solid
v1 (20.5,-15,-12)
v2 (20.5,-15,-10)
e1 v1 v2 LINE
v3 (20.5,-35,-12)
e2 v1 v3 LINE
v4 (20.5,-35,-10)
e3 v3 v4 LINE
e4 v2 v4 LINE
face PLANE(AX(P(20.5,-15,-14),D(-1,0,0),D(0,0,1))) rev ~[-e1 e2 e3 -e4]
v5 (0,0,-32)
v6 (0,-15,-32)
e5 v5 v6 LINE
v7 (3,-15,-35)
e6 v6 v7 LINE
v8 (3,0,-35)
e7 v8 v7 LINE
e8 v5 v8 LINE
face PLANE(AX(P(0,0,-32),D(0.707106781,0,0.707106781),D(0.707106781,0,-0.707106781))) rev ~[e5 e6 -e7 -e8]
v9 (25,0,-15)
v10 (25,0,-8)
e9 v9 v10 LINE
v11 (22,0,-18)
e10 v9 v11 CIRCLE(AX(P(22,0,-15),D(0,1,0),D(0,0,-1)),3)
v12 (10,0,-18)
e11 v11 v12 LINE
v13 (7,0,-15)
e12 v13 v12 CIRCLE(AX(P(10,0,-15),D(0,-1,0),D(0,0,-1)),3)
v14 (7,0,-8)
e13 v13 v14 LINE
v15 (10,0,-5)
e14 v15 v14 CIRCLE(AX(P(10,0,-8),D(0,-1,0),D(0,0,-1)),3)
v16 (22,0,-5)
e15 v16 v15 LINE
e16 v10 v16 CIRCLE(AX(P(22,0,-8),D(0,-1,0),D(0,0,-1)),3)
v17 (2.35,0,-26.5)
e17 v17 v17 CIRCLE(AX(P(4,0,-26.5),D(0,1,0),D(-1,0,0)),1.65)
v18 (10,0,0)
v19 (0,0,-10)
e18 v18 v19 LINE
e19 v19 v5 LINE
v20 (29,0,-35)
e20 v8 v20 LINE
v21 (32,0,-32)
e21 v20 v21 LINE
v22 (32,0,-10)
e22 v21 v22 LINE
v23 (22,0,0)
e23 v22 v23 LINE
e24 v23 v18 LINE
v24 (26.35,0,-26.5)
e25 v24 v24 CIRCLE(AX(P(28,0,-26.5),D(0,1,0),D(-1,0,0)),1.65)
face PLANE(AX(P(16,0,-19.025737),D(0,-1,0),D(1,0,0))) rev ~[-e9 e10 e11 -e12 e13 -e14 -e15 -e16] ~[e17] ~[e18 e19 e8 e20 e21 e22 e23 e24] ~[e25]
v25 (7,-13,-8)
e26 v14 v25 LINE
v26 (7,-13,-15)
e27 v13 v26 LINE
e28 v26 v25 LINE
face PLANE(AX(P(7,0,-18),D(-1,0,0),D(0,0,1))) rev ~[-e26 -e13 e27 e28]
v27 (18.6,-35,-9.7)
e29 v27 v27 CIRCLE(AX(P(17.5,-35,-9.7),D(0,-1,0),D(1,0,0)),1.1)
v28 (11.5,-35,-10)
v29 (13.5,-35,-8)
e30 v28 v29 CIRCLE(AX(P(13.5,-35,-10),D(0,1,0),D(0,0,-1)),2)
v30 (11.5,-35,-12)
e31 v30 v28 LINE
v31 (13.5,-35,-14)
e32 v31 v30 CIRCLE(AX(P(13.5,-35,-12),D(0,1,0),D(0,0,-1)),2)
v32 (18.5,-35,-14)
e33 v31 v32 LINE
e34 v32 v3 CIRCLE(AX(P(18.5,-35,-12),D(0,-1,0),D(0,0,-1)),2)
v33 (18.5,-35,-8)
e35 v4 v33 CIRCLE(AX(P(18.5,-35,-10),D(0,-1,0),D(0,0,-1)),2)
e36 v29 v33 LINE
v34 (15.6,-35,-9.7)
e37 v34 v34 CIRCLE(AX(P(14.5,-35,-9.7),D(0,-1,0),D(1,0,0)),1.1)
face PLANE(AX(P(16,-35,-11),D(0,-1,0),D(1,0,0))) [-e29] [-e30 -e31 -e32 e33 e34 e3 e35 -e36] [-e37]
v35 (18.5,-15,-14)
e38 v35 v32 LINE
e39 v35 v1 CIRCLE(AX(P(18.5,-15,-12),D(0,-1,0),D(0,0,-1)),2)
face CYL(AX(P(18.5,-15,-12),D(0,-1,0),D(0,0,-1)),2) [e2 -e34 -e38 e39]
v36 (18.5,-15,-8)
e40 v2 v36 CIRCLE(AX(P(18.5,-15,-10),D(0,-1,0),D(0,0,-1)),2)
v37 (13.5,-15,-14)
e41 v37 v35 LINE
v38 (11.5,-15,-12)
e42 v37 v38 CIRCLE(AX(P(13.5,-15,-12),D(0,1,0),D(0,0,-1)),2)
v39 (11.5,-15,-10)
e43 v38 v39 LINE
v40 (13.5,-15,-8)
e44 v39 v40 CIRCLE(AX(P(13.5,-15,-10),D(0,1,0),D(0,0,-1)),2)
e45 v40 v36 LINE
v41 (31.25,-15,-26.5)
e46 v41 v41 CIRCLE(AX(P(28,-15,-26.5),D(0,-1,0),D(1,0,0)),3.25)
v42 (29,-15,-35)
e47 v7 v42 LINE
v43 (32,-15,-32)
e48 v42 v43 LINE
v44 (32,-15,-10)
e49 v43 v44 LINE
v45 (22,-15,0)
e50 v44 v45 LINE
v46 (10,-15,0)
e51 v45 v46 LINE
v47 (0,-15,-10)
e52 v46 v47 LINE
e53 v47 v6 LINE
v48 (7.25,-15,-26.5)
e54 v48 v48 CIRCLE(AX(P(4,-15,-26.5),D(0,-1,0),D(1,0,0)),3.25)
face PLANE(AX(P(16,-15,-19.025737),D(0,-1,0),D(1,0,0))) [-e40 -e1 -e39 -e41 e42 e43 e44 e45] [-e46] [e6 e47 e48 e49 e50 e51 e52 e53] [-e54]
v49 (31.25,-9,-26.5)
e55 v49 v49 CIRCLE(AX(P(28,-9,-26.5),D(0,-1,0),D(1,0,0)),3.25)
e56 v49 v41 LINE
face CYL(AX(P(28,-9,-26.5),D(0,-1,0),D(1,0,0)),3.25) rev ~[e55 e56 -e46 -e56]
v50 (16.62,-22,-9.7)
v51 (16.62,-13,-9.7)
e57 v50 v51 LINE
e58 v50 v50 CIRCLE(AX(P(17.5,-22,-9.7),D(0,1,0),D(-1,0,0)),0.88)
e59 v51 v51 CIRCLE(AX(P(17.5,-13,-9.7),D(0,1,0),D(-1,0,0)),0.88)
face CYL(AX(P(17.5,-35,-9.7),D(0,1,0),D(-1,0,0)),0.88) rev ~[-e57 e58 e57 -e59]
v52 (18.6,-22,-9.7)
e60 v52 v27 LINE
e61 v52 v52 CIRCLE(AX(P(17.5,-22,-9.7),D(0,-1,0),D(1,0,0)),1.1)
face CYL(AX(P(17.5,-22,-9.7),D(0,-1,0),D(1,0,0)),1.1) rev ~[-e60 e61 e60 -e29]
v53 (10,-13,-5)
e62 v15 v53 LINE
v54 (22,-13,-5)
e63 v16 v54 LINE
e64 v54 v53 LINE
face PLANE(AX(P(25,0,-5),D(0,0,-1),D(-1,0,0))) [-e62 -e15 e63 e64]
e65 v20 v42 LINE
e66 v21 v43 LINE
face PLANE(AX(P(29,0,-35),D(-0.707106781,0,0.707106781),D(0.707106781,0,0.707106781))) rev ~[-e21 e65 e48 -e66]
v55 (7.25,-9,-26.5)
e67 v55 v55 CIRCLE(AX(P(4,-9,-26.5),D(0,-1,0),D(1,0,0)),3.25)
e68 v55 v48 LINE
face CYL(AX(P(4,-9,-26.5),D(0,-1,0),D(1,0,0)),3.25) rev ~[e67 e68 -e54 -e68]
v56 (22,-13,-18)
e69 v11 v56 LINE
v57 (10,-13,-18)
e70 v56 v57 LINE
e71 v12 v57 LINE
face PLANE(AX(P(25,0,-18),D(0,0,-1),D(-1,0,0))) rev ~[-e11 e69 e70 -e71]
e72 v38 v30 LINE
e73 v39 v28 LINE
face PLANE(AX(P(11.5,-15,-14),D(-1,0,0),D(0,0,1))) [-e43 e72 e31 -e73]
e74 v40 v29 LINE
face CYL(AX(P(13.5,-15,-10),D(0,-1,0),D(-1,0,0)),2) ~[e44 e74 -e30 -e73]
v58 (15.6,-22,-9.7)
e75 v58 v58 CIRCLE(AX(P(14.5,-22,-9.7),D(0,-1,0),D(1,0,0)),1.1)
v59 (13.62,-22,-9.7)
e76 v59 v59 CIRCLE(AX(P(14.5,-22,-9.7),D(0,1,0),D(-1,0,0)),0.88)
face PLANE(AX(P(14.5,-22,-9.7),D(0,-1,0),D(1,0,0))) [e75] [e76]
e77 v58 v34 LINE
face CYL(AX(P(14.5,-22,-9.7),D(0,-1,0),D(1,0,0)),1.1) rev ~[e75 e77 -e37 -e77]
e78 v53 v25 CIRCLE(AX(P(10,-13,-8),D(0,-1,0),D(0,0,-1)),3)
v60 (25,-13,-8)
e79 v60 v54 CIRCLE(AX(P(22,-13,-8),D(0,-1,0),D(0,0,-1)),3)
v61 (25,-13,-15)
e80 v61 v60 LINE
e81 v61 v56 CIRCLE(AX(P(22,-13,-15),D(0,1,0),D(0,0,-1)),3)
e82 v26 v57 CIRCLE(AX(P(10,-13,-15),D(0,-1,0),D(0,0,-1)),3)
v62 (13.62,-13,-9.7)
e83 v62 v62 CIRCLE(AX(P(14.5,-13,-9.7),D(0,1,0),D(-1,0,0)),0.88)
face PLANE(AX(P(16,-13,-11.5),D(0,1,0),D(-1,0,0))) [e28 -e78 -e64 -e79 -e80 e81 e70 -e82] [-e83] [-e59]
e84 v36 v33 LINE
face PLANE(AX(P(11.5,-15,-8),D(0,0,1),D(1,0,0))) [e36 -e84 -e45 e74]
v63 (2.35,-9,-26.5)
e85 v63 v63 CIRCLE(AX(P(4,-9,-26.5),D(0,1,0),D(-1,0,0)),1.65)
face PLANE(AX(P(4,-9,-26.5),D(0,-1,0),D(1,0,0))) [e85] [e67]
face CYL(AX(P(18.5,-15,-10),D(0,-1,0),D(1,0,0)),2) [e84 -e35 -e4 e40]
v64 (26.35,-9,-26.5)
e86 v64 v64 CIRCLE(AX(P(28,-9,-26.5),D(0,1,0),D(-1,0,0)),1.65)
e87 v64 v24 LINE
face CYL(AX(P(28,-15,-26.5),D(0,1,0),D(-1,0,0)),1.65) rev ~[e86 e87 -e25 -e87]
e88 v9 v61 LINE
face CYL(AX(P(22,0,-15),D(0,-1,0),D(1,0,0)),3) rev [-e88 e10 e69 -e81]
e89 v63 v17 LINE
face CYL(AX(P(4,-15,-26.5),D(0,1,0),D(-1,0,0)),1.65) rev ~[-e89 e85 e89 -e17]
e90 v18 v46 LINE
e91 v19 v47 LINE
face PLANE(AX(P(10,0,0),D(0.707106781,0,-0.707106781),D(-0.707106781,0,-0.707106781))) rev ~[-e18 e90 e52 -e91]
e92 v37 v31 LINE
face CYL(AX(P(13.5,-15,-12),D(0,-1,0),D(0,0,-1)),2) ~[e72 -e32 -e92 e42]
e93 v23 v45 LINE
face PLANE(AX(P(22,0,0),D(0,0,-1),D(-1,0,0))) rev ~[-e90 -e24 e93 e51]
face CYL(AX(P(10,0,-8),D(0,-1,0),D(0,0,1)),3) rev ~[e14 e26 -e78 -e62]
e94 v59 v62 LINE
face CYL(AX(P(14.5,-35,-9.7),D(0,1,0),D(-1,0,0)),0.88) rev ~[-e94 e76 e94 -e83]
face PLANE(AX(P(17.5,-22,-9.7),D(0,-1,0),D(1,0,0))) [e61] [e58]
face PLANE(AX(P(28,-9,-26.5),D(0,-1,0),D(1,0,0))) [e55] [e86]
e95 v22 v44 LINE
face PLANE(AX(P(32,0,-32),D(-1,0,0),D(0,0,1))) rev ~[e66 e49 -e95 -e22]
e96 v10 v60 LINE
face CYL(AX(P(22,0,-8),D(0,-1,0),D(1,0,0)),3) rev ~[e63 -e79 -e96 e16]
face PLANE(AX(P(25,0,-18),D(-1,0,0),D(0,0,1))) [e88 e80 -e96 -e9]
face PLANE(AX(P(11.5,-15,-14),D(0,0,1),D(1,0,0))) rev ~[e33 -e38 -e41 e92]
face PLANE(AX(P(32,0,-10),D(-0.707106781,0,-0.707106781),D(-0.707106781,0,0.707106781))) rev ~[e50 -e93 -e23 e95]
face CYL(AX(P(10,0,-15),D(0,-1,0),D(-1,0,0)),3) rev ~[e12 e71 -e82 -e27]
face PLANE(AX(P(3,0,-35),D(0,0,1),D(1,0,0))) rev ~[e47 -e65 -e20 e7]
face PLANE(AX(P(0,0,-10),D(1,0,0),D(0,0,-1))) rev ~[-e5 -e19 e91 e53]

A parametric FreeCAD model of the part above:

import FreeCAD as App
import Part
import Sketcher

V = App.Vector


def edges_at(feature, points):
    """Names of the edges that pass closest to the given points."""
    edges = feature.Shape.Edges
    near = lambda p: min(range(len(edges)), key=lambda i: edges[i].distToShape(Part.Vertex(*p))[0])
    return sorted({f"Edge{near(p) + 1}" for p in points})

doc = App.newDocument("Part")
body = doc.addObject("PartDesign::Body", "Body")

sketch1 = doc.addObject("Sketcher::SketchObject", "Sketch")
body.addObject(sketch1)
sketch1.AttachmentSupport = (doc.XZ_Plane, [""])
sketch1.MapMode = "FlatFace"
sketch1.addGeometry([
    Part.LineSegment(V(22, 0, 0), V(10, 0, 0)),
    Part.LineSegment(V(10, 0, 0), V(0, -10, 0)),
    Part.LineSegment(V(0, -10, 0), V(0, -32, 0)),
    Part.LineSegment(V(0, -32, 0), V(3, -35, 0)),
    Part.LineSegment(V(3, -35, 0), V(29, -35, 0)),
    Part.LineSegment(V(29, -35, 0), V(32, -32, 0)),
    Part.LineSegment(V(32, -32, 0), V(32, -10, 0)),
    Part.LineSegment(V(32, -10, 0), V(22, 0, 0)),
], False)
sketch1.addConstraint([
    Sketcher.Constraint("Coincident", 0, 2, 1, 1),
    Sketcher.Constraint("Coincident", 1, 2, 2, 1),
    Sketcher.Constraint("Coincident", 2, 2, 3, 1),
    Sketcher.Constraint("Coincident", 3, 2, 4, 1),
    Sketcher.Constraint("Coincident", 4, 2, 5, 1),
    Sketcher.Constraint("Coincident", 5, 2, 6, 1),
    Sketcher.Constraint("Coincident", 6, 2, 7, 1),
    Sketcher.Constraint("Coincident", 7, 2, 0, 1),
    Sketcher.Constraint("Horizontal", 0),
    Sketcher.Constraint("Vertical", 2),
    Sketcher.Constraint("Horizontal", 4),
    Sketcher.Constraint("Vertical", 6),
    Sketcher.Constraint("PointOnObject", 0, 2, -1),
    Sketcher.Constraint("PointOnObject", 1, 2, -2),
    Sketcher.Constraint("Perpendicular", 1, 3),
    Sketcher.Constraint("Perpendicular", 3, 5),
    Sketcher.Constraint("Perpendicular", 5, 7),
    Sketcher.Constraint("Horizontal", 2, 2, 5, 2),
    Sketcher.Constraint("Horizontal", 1, 2, 6, 2),
    Sketcher.Constraint("Equal", 3, 5),
    Sketcher.Constraint("DistanceX", 0, 2, 0, 1, 12.0),
    Sketcher.Constraint("DistanceX", 4, 1, 4, 2, 26.0),
    Sketcher.Constraint("DistanceY", 2, 2, 2, 1, 22.0),
    Sketcher.Constraint("DistanceX", -1, 1, 0, 2, 10.0),
])
pad1 = doc.addObject("PartDesign::Pad", "Pad")
body.addObject(pad1)
pad1.Profile = sketch1
pad1.Length = 15

sketch2 = doc.addObject("Sketcher::SketchObject", "Sketch001")
body.addObject(sketch2)
sketch2.AttachmentSupport = (doc.XZ_Plane, [""])
sketch2.MapMode = "FlatFace"
sketch2.AttachmentOffset = App.Placement(V(0, 0, 15), App.Rotation())
sketch2.addGeometry([
    Part.LineSegment(V(12, -8, 0), V(12, -14, 0)),
    Part.LineSegment(V(12, -14, 0), V(20, -14, 0)),
    Part.LineSegment(V(20, -14, 0), V(20, -8, 0)),
    Part.LineSegment(V(20, -8, 0), V(12, -8, 0)),
], False)
sketch2.addConstraint([
    Sketcher.Constraint("Coincident", 0, 2, 1, 1),
    Sketcher.Constraint("Coincident", 1, 2, 2, 1),
    Sketcher.Constraint("Coincident", 2, 2, 3, 1),
    Sketcher.Constraint("Coincident", 3, 2, 0, 1),
    Sketcher.Constraint("Vertical", 0),
    Sketcher.Constraint("Horizontal", 1),
    Sketcher.Constraint("Vertical", 2),
    Sketcher.Constraint("Horizontal", 3),
    Sketcher.Constraint("DistanceX", 1, 1, 1, 2, 9.0),
    Sketcher.Constraint("DistanceY", 0, 2, 0, 1, 6.0),
    Sketcher.Constraint("DistanceY", 0, 2, -1, 1, 14.0),
    Sketcher.Constraint("DistanceX", -1, 1, 0, 2, 11.5),
])
pad2 = doc.addObject("PartDesign::Pad", "Pad001")
body.addObject(pad2)
pad2.Profile = sketch2
pad2.Length = 20

sketch3 = doc.addObject("Sketcher::SketchObject", "Sketch002")
body.addObject(sketch3)
sketch3.AttachmentSupport = (doc.XZ_Plane, [""])
sketch3.MapMode = "FlatFace"
sketch3.addGeometry([
    Part.LineSegment(V(25, -5, 0), V(25, -18, 0)),
    Part.LineSegment(V(25, -18, 0), V(7, -18, 0)),
    Part.LineSegment(V(7, -18, 0), V(7, -5, 0)),
    Part.LineSegment(V(7, -5, 0), V(25, -5, 0)),
], False)
sketch3.addConstraint([
    Sketcher.Constraint("Coincident", 0, 2, 1, 1),
    Sketcher.Constraint("Coincident", 1, 2, 2, 1),
    Sketcher.Constraint("Coincident", 2, 2, 3, 1),
    Sketcher.Constraint("Coincident", 3, 2, 0, 1),
    Sketcher.Constraint("Vertical", 0),
    Sketcher.Constraint("Horizontal", 1),
    Sketcher.Constraint("Vertical", 2),
    Sketcher.Constraint("Horizontal", 3),
    Sketcher.Constraint("DistanceX", 1, 2, 1, 1, 18.0),
    Sketcher.Constraint("DistanceY", 0, 2, 0, 1, 13.0),
    Sketcher.Constraint("DistanceX", -1, 1, 0, 2, 25.0),
    Sketcher.Constraint("DistanceY", 0, 2, -1, 1, 18.0),
])
pocket1 = doc.addObject("PartDesign::Pocket", "Pocket")
body.addObject(pocket1)
pocket1.Profile = sketch3
pocket1.Length = 13
pocket1.Reversed = True
doc.recompute()

fillet = doc.addObject("PartDesign::Fillet", "Fillet")
body.addObject(fillet)
fillet.Base = (pocket1, edges_at(pocket1, [
    (25, -6.5, -5),
    (7, -6.5, -5),
    (25, -6.5, -18),
    (7, -6.5, -18),
]))
fillet.Radius = 3

sketch4 = doc.addObject("Sketcher::SketchObject", "Sketch003")
body.addObject(sketch4)
sketch4.AttachmentSupport = (doc.XZ_Plane, [""])
sketch4.MapMode = "FlatFace"
sketch4.AttachmentOffset = App.Placement(V(0, 0, 15), App.Rotation())
sketch4.addGeometry([
    Part.Circle(V(4, -26.5, 0), V(0, 0, 1), 1.6),
    Part.Circle(V(28, -26.5, 0), V(0, 0, 1), 1.6),
], False)
sketch4.addConstraint([
    Sketcher.Constraint("Equal", 0, 1),
    Sketcher.Constraint("Horizontal", 0, 3, 1, 3),
    Sketcher.Constraint("Diameter", 0, 3.3),
    Sketcher.Constraint("DistanceX", -1, 1, 0, 3, 4.0),
    Sketcher.Constraint("DistanceX", -1, 1, 1, 3, 28.0),
    Sketcher.Constraint("DistanceY", 0, 3, -1, 1, 26.5),
])
doc.recompute()
hole = doc.addObject("PartDesign::Hole", "Hole")
body.addObject(hole)
hole.Profile = sketch4
hole.ThreadType = "None"
hole.Diameter = 3.3
hole.DepthType = "ThroughAll"
hole.HoleCutType = "Counterbore"
hole.HoleCutDiameter = 6.5
hole.HoleCutDepth = 6

sketch5 = doc.addObject("Sketcher::SketchObject", "Sketch004")
body.addObject(sketch5)
sketch5.AttachmentSupport = (doc.XZ_Plane, [""])
sketch5.MapMode = "FlatFace"
sketch5.AttachmentOffset = App.Placement(V(0, 0, 35), App.Rotation())
sketch5.addGeometry([
    Part.Circle(V(14.5, -9.7, 0), V(0, 0, 1), 0.9),
    Part.Circle(V(17.5, -9.7, 0), V(0, 0, 1), 0.9),
], False)
sketch5.addConstraint([
    Sketcher.Constraint("Equal", 0, 1),
    Sketcher.Constraint("Horizontal", 0, 3, 1, 3),
    Sketcher.Constraint("Diameter", 0, 1.76),
    Sketcher.Constraint("DistanceX", 0, 3, 1, 3, 3.0),
    Sketcher.Constraint("DistanceX", -1, 1, 0, 3, 14.5),
    Sketcher.Constraint("DistanceY", 0, 3, -1, 1, 9.7),
])
doc.recompute()
hole2 = doc.addObject("PartDesign::Hole", "Hole001")
body.addObject(hole2)
hole2.Profile = sketch5
hole2.ThreadType = "None"
hole2.Diameter = 1.76
hole2.DepthType = "ThroughAll"
hole2.HoleCutType = "Counterbore"
hole2.HoleCutDiameter = 2.2
hole2.HoleCutDepth = 13
doc.recompute()

fillet2 = doc.addObject("PartDesign::Fillet", "Fillet001")
body.addObject(fillet2)
fillet2.Base = (hole2, edges_at(hole2, [
    (20.5, -25, -8),
    (20.5, -25, -14),
    (11.5, -25, -8),
    (11.5, -25, -14),
]))
fillet2.Radius = 2

doc.recompute()
